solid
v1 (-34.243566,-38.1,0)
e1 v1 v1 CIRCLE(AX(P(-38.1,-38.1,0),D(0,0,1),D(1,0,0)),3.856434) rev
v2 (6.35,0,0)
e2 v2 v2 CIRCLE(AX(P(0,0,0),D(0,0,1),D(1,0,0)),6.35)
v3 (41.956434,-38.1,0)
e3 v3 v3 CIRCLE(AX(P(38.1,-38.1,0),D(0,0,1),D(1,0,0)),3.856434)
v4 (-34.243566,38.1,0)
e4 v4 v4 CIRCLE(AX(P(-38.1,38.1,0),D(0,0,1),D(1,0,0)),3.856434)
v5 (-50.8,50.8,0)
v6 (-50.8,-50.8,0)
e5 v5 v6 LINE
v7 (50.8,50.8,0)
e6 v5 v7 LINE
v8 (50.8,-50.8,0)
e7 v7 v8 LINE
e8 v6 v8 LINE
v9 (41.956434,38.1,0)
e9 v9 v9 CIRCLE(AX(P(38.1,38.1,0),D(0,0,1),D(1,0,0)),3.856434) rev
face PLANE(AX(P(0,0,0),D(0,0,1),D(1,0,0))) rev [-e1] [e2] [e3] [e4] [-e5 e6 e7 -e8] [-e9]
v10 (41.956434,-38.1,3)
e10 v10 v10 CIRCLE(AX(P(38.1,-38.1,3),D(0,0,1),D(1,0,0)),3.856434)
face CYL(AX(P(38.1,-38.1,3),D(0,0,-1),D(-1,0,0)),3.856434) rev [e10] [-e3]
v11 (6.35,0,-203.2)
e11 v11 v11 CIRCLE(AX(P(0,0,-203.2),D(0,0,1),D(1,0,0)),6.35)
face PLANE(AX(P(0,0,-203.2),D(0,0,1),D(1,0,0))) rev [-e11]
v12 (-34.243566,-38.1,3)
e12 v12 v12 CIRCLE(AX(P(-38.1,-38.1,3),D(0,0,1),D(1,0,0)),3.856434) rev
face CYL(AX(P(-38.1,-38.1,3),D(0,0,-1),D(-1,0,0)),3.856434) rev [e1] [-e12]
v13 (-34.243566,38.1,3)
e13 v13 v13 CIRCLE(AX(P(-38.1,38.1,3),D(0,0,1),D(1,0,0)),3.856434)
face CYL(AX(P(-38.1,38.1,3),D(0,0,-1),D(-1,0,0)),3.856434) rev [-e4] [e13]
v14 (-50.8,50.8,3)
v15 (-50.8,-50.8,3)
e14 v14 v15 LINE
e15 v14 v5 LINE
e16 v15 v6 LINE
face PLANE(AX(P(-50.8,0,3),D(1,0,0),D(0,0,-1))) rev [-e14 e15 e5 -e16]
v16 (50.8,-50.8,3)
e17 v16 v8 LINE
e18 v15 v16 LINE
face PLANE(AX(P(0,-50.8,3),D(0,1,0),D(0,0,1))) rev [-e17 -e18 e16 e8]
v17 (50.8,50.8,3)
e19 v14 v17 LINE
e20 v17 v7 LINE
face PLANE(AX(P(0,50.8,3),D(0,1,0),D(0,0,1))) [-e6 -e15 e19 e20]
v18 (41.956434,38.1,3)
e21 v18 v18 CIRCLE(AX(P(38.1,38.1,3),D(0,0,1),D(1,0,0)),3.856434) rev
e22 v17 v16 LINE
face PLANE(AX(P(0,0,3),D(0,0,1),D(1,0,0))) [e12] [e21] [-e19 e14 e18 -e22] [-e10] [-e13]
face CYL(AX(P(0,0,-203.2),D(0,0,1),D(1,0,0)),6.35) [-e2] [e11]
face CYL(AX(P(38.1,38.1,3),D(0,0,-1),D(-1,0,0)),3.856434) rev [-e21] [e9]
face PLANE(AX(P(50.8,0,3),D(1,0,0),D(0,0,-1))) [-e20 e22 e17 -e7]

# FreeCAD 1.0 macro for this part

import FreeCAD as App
import Part
import Sketcher

V = App.Vector
Q = App.Units.Quantity

doc = App.newDocument("Part")
body = doc.addObject("PartDesign::Body", "Body")

# Sketch on XY plane
sketch1 = body.newObject("Sketcher::SketchObject", "Sketch")
sketch1.AttachmentSupport = (doc.getObject("XY_Plane"), [""])
sketch1.MapMode = "FlatFace"
sketch1.addGeometry(Part.LineSegment(V(-50.8, 50.8, 0), V(-50.8, -50.8, 0)), False)
sketch1.addGeometry(Part.LineSegment(V(-50.8, -50.8, 0), V(50.8, -50.8, 0)), False)
sketch1.addGeometry(Part.LineSegment(V(50.8, -50.8, 0), V(50.8, 50.8, 0)), False)
sketch1.addGeometry(Part.LineSegment(V(50.8, 50.8, 0), V(-50.8, 50.8, 0)), False)
sketch1.addGeometry(Part.Circle(V(-38.1, -38.1, 0), V(0, 0, 1), 3.856434), False)
sketch1.addGeometry(Part.Circle(V(38.1, -38.1, 0), V(0, 0, 1), 3.856434), False)
sketch1.addGeometry(Part.Circle(V(-38.1, 38.1, 0), V(0, 0, 1), 3.856434), False)
sketch1.addGeometry(Part.Circle(V(38.1, 38.1, 0), V(0, 0, 1), 3.856434), False)
sketch1.addConstraint(Sketcher.Constraint("Coincident", 0, 2, 1, 1))
sketch1.addConstraint(Sketcher.Constraint("Coincident", 1, 2, 2, 1))
sketch1.addConstraint(Sketcher.Constraint("Coincident", 2, 2, 3, 1))
sketch1.addConstraint(Sketcher.Constraint("Coincident", 3, 2, 0, 1))
sketch1.addConstraint(Sketcher.Constraint("Vertical", 0))
sketch1.addConstraint(Sketcher.Constraint("Horizontal", 1))
sketch1.addConstraint(Sketcher.Constraint("Vertical", 2))
sketch1.addConstraint(Sketcher.Constraint("Horizontal", 3))
sketch1.addConstraint(Sketcher.Constraint("Equal", 4, 5))
sketch1.addConstraint(Sketcher.Constraint("Equal", 5, 6))
sketch1.addConstraint(Sketcher.Constraint("Equal", 6, 7))
sketch1.addConstraint(Sketcher.Constraint("Symmetric", 5, 3, 6, 3, -1, 1))
sketch1.addConstraint(Sketcher.Constraint("Symmetric", 4, 3, 7, 3, -1, 1))
sketch1.addConstraint(Sketcher.Constraint("Symmetric", 0, 2, 2, 2, -1, 1))
sketch1.addConstraint(Sketcher.Constraint("Symmetric", 4, 3, 5, 3, -2))
sketch1.addConstraint(Sketcher.Constraint("Equal", 3, 0))
sketch1.addConstraint(Sketcher.Constraint("DistanceX", 1, 1, 1, 2, Q("4 in")))
sketch1.addConstraint(Sketcher.Constraint("DistanceX", 4, 3, 5, 3, Q("3 in")))
sketch1.addConstraint(Sketcher.Constraint("DistanceY", 4, 3, 6, 3, Q("3 in")))
sketch1.addConstraint(Sketcher.Constraint("Diameter", 4, Q("7.712868 mm")))
pad1 = body.newObject("PartDesign::Pad", "Pad")
pad1.Profile = sketch1
pad1.Length = 3

# Sketch on XY plane
sketch2 = body.newObject("Sketcher::SketchObject", "Sketch001")
sketch2.AttachmentSupport = (doc.getObject("XY_Plane"), [""])
sketch2.MapMode = "FlatFace"
sketch2.addGeometry(Part.Circle(V(0, 0, 0), V(0, 0, 1), 6.35), False)
sketch2.addConstraint(Sketcher.Constraint("Coincident", 0, 3, -1, 1))
sketch2.addConstraint(Sketcher.Constraint("Diameter", 0, Q("0.5 in")))
pad2 = body.newObject("PartDesign::Pad", "Pad001")
pad2.Profile = sketch2
pad2.Length = Q("8 in")
pad2.Reversed = True

doc.recompute()
